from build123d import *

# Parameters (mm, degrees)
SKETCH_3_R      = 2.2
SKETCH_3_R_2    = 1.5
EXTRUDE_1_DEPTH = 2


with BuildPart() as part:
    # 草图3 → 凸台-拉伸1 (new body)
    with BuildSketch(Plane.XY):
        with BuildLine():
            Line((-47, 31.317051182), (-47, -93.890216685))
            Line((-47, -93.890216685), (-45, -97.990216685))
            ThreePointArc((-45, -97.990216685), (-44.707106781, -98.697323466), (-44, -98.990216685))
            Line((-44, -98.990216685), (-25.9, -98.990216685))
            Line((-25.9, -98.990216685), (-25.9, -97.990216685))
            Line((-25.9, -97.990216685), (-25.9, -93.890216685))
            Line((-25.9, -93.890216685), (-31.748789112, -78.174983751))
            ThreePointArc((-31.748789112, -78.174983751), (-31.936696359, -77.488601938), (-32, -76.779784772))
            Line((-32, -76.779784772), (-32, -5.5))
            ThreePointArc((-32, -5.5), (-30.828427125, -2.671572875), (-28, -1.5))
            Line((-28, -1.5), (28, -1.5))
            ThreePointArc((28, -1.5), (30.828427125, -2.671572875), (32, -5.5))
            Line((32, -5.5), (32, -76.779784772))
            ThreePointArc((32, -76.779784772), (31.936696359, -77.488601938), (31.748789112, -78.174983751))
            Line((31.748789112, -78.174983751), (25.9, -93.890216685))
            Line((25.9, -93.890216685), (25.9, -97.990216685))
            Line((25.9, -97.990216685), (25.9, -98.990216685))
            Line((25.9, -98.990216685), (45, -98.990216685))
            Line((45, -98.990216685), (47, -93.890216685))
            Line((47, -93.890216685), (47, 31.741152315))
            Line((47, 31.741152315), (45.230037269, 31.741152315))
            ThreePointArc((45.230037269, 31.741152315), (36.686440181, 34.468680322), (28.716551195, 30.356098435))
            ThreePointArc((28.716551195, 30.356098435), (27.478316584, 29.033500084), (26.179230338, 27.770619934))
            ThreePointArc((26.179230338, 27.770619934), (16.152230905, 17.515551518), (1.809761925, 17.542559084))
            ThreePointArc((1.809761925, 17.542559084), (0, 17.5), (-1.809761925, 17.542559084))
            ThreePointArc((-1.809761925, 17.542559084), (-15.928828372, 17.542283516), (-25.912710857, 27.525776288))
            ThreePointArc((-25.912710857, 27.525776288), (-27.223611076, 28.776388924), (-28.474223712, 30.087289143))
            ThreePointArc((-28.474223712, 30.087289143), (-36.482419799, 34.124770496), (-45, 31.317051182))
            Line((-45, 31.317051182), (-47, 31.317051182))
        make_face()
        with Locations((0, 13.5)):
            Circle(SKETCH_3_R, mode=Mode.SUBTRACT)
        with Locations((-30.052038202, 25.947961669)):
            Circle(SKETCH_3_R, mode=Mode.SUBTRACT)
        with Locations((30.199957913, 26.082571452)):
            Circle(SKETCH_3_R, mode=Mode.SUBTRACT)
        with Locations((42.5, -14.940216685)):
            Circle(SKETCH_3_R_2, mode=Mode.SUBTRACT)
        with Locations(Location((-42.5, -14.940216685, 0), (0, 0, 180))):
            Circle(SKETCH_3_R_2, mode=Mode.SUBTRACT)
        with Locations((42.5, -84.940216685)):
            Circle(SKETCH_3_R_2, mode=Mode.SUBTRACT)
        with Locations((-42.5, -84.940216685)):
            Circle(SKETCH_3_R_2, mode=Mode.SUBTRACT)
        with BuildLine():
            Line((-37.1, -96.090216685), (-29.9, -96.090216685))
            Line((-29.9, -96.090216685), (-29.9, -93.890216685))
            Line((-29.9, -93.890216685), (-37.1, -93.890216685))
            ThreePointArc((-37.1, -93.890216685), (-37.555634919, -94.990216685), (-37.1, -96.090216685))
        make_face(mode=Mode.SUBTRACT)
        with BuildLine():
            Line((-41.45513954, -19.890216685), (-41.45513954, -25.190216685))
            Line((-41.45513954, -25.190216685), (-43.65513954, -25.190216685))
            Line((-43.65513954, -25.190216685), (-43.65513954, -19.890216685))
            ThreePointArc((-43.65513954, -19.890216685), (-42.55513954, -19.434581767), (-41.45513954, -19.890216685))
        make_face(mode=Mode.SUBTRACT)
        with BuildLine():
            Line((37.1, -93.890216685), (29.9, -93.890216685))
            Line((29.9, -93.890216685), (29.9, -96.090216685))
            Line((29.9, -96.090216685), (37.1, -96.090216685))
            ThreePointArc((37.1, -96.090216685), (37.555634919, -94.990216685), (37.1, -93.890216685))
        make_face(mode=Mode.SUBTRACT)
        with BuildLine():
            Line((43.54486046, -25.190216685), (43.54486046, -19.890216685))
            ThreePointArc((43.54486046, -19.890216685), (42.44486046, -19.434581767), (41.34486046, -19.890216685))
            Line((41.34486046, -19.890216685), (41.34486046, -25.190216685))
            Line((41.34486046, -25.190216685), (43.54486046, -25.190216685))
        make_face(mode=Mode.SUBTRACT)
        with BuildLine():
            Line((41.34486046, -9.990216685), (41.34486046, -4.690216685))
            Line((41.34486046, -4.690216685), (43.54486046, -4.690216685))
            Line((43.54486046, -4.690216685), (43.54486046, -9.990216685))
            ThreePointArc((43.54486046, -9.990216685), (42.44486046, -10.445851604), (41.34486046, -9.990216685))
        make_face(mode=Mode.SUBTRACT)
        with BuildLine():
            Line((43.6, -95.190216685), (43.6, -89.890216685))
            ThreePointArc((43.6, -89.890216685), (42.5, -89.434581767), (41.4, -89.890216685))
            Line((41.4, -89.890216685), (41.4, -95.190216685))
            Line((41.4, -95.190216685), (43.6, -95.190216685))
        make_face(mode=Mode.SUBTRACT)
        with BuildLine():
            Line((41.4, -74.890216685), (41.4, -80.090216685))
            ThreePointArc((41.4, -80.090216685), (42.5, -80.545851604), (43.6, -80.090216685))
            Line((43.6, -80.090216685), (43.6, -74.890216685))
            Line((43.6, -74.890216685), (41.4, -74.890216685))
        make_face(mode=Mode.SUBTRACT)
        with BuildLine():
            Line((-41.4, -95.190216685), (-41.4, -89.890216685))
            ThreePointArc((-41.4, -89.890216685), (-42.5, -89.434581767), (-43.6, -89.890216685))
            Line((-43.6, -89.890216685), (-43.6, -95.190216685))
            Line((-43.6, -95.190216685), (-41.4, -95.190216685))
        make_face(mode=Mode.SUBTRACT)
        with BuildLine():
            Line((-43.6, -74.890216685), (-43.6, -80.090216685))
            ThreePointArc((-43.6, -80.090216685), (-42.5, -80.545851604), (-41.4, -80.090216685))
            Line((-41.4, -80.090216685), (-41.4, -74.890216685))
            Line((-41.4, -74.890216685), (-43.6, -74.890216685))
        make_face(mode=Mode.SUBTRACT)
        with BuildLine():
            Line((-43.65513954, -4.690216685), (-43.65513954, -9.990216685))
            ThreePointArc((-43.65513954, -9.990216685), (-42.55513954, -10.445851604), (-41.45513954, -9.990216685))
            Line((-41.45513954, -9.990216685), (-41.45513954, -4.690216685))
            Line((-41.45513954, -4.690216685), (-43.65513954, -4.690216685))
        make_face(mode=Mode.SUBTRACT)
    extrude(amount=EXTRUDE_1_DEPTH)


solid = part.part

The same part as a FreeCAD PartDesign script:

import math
import FreeCAD as App
import Part
import Sketcher

doc = App.newDocument("Part")
body = doc.addObject("PartDesign::Body", "Body")

sketch1 = body.newObject("Sketcher::SketchObject", "Sketch")
sketch1.AttachmentSupport = (doc.getObject("XY_Plane"), [""])
sketch1.MapMode = "FlatFace"
sketch1.addGeometry([
    Part.LineSegment(App.Vector(-47, 31.3, 0), App.Vector(-47, -93.9, 0)),
    Part.LineSegment(App.Vector(-47, -93.9, 0), App.Vector(-45, -98, 0)),
    Part.ArcOfCircle(Part.Circle(App.Vector(-44, -98, 0), App.Vector(0, 0, 1), 1), math.radians(-180), math.radians(-90)),
    Part.LineSegment(App.Vector(-44, -99, 0), App.Vector(-25.9, -99, 0)),
    Part.LineSegment(App.Vector(-25.9, -99, 0), App.Vector(-25.9, -93.9, 0)),
    Part.LineSegment(App.Vector(-25.9, -93.9, 0), App.Vector(-31.7, -78.2, 0)),
    Part.ArcOfCircle(Part.Circle(App.Vector(-28, -76.8, 0), App.Vector(0, 0, 1), 4), math.radians(-180), math.radians(-160)),
    Part.LineSegment(App.Vector(-32, -76.8, 0), App.Vector(-32, -5.5, 0)),
    Part.ArcOfCircle(Part.Circle(App.Vector(-28, -5.5, 0), App.Vector(0, 0, 1), 4), math.radians(90), math.radians(180)),
    Part.LineSegment(App.Vector(-28, -1.5, 0), App.Vector(28, -1.5, 0)),
    Part.ArcOfCircle(Part.Circle(App.Vector(28, -5.5, 0), App.Vector(0, 0, 1), 4), math.radians(0), math.radians(90)),
    Part.LineSegment(App.Vector(32, -5.5, 0), App.Vector(32, -76.8, 0)),
    Part.ArcOfCircle(Part.Circle(App.Vector(28, -76.8, 0), App.Vector(0, 0, 1), 4), math.radians(-20), math.radians(0)),
    Part.LineSegment(App.Vector(31.7, -78.2, 0), App.Vector(25.9, -93.9, 0)),
    Part.LineSegment(App.Vector(25.9, -93.9, 0), App.Vector(25.9, -99, 0)),
    Part.LineSegment(App.Vector(25.9, -99, 0), App.Vector(45, -99, 0)),
    Part.LineSegment(App.Vector(45, -99, 0), App.Vector(47, -93.9, 0)),
    Part.LineSegment(App.Vector(47, -93.9, 0), App.Vector(47, 31.7, 0)),
    Part.LineSegment(App.Vector(47, 31.7, 0), App.Vector(45.2, 31.7, 0)),
    Part.ArcOfCircle(Part.Circle(App.Vector(37.7, 22.8, 0), App.Vector(0, 0, 1), 11.7), math.radians(50), math.radians(140)),
    Part.ArcOfCircle(Part.Circle(App.Vector(0, 56, 0), App.Vector(0, 0, 1), 38.5), math.radians(-47.16), math.radians(-41.76)),
    Part.ArcOfCircle(Part.Circle(App.Vector(9, 34.5, 0), App.Vector(0, 0, 1), 18.4), math.radians(-113), math.radians(-21)),
    Part.ArcOfCircle(Part.Circle(App.Vector(0, 56, 0), App.Vector(0, 0, 1), 38.5), math.radians(-92.69), math.radians(-87.31)),
    Part.ArcOfCircle(Part.Circle(App.Vector(-8.9, 34.6, 0), App.Vector(0, 0, 1), 18.4), math.radians(-157), math.radians(-67)),
    Part.ArcOfCircle(Part.Circle(App.Vector(0, 56, 0), App.Vector(0, 0, 1), 38.5), math.radians(-137.7), math.radians(-132.3)),
    Part.ArcOfCircle(Part.Circle(App.Vector(-37.4, 22.4, 0), App.Vector(0, 0, 1), 11.7), math.radians(41), math.radians(131)),
    Part.LineSegment(App.Vector(-45, 31.3, 0), App.Vector(-47, 31.3, 0)),
    Part.LineSegment(App.Vector(-41.4, -89.9, 0), App.Vector(-41.4, -95.2, 0)),
    Part.LineSegment(App.Vector(-41.4, -95.2, 0), App.Vector(-43.6, -95.2, 0)),
    Part.LineSegment(App.Vector(-43.6, -95.2, 0), App.Vector(-43.6, -89.9, 0)),
    Part.ArcOfCircle(Part.Circle(App.Vector(-42.5, -91, 0), App.Vector(0, 0, 1), 1.6), math.radians(45), math.radians(135)),
    Part.LineSegment(App.Vector(-29.9, -96.1, 0), App.Vector(-37.1, -96.1, 0)),
    Part.ArcOfCircle(Part.Circle(App.Vector(-36, -95, 0), App.Vector(0, 0, 1), 1.6), math.radians(135), math.radians(225)),
    Part.LineSegment(App.Vector(-37.1, -93.9, 0), App.Vector(-29.9, -93.9, 0)),
    Part.LineSegment(App.Vector(-29.9, -93.9, 0), App.Vector(-29.9, -96.1, 0)),
    Part.Circle(App.Vector(-42.5, -84.9, 0), App.Vector(0, 0, 1), 1.5),
    Part.LineSegment(App.Vector(-43.6, -80.1, 0), App.Vector(-43.6, -74.9, 0)),
    Part.LineSegment(App.Vector(-43.6, -74.9, 0), App.Vector(-41.4, -74.9, 0)),
    Part.LineSegment(App.Vector(-41.4, -74.9, 0), App.Vector(-41.4, -80.1, 0)),
    Part.ArcOfCircle(Part.Circle(App.Vector(-42.5, -79, 0), App.Vector(0, 0, 1), 1.6), math.radians(-135), math.radians(-45)),
    Part.LineSegment(App.Vector(29.9, -93.9, 0), App.Vector(37.1, -93.9, 0)),
    Part.ArcOfCircle(Part.Circle(App.Vector(36, -95, 0), App.Vector(0, 0, 1), 1.6), math.radians(-45), math.radians(45)),
    Part.LineSegment(App.Vector(37.1, -96.1, 0), App.Vector(29.9, -96.1, 0)),
    Part.LineSegment(App.Vector(29.9, -96.1, 0), App.Vector(29.9, -93.9, 0)),
    Part.LineSegment(App.Vector(43.6, -89.9, 0), App.Vector(43.6, -95.2, 0)),
    Part.LineSegment(App.Vector(43.6, -95.2, 0), App.Vector(41.4, -95.2, 0)),
    Part.LineSegment(App.Vector(41.4, -95.2, 0), App.Vector(41.4, -89.9, 0)),
    Part.ArcOfCircle(Part.Circle(App.Vector(42.5, -91, 0), App.Vector(0, 0, 1), 1.6), math.radians(45), math.radians(135)),
    Part.Circle(App.Vector(42.5, -84.9, 0), App.Vector(0, 0, 1), 1.5),
    Part.LineSegment(App.Vector(41.4, -80.1, 0), App.Vector(41.4, -74.9, 0)),
    Part.LineSegment(App.Vector(41.4, -74.9, 0), App.Vector(43.6, -74.9, 0)),
    Part.LineSegment(App.Vector(43.6, -74.9, 0), App.Vector(43.6, -80.1, 0)),
    Part.ArcOfCircle(Part.Circle(App.Vector(42.5, -79, 0), App.Vector(0, 0, 1), 1.6), math.radians(-135), math.radians(-45)),
    Part.ArcOfCircle(Part.Circle(App.Vector(-42.6, -21, 0), App.Vector(0, 0, 1), 1.6), math.radians(45), math.radians(135)),
    Part.LineSegment(App.Vector(-41.5, -19.9, 0), App.Vector(-41.5, -25.2, 0)),
    Part.LineSegment(App.Vector(-41.5, -25.2, 0), App.Vector(-43.7, -25.2, 0)),
    Part.LineSegment(App.Vector(-43.7, -25.2, 0), App.Vector(-43.7, -19.9, 0)),
    Part.Circle(App.Vector(-42.5, -14.9, 0), App.Vector(0, 0, 1), 1.5),
    Part.LineSegment(App.Vector(-43.7, -10, 0), App.Vector(-43.7, -4.7, 0)),
    Part.LineSegment(App.Vector(-43.7, -4.7, 0), App.Vector(-41.5, -4.7, 0)),
    Part.LineSegment(App.Vector(-41.5, -4.7, 0), App.Vector(-41.5, -10, 0)),
    Part.ArcOfCircle(Part.Circle(App.Vector(-42.6, -8.9, 0), App.Vector(0, 0, 1), 1.6), math.radians(-135), math.radians(-45)),
    Part.Circle(App.Vector(-30.1, 25.9, 0), App.Vector(0, 0, 1), 2.2),
    Part.LineSegment(App.Vector(43.5, -19.9, 0), App.Vector(43.5, -25.2, 0)),
    Part.LineSegment(App.Vector(43.5, -25.2, 0), App.Vector(41.3, -25.2, 0)),
    Part.LineSegment(App.Vector(41.3, -25.2, 0), App.Vector(41.3, -19.9, 0)),
    Part.ArcOfCircle(Part.Circle(App.Vector(42.4, -21, 0), App.Vector(0, 0, 1), 1.6), math.radians(45), math.radians(135)),
    Part.Circle(App.Vector(42.5, -14.9, 0), App.Vector(0, 0, 1), 1.5),
    Part.ArcOfCircle(Part.Circle(App.Vector(42.4, -8.9, 0), App.Vector(0, 0, 1), 1.6), math.radians(-135), math.radians(-45)),
    Part.LineSegment(App.Vector(41.3, -10, 0), App.Vector(41.3, -4.7, 0)),
    Part.LineSegment(App.Vector(41.3, -4.7, 0), App.Vector(43.5, -4.7, 0)),
    Part.LineSegment(App.Vector(43.5, -4.7, 0), App.Vector(43.5, -10, 0)),
    Part.Circle(App.Vector(0, 13.5, 0), App.Vector(0, 0, 1), 2.2),
    Part.Circle(App.Vector(30.2, 26.1, 0), App.Vector(0, 0, 1), 2.2),
], False)
sketch1.addConstraint([
    Sketcher.Constraint("Coincident", 0, 2, 1, 1),
    Sketcher.Constraint("Coincident", 1, 2, 2, 1),
    Sketcher.Constraint("Tangent", 2, 2, 3, 1),
    Sketcher.Constraint("Coincident", 3, 2, 4, 1),
    Sketcher.Constraint("Coincident", 4, 2, 5, 1),
    Sketcher.Constraint("Tangent", 5, 2, 6, 2),
    Sketcher.Constraint("Tangent", 6, 1, 7, 1),
    Sketcher.Constraint("Tangent", 7, 2, 8, 2),
    Sketcher.Constraint("Tangent", 8, 1, 9, 1),
    Sketcher.Constraint("Tangent", 9, 2, 10, 2),
    Sketcher.Constraint("Tangent", 10, 1, 11, 1),
    Sketcher.Constraint("Tangent", 11, 2, 12, 2),
    Sketcher.Constraint("Tangent", 12, 1, 13, 1),
    Sketcher.Constraint("Coincident", 13, 2, 14, 1),
    Sketcher.Constraint("Coincident", 14, 2, 15, 1),
    Sketcher.Constraint("Coincident", 15, 2, 16, 1),
    Sketcher.Constraint("Coincident", 16, 2, 17, 1),
    Sketcher.Constraint("Coincident", 17, 2, 18, 1),
    Sketcher.Constraint("Coincident", 18, 2, 19, 1),
    Sketcher.Constraint("Coincident", 19, 2, 20, 2),
    Sketcher.Constraint("Coincident", 20, 1, 21, 2),
    Sketcher.Constraint("Coincident", 21, 1, 22, 2),
    Sketcher.Constraint("Coincident", 22, 1, 23, 2),
    Sketcher.Constraint("Coincident", 23, 1, 24, 2),
    Sketcher.Constraint("Coincident", 24, 1, 25, 1),
    Sketcher.Constraint("Coincident", 25, 2, 26, 1),
    Sketcher.Constraint("Coincident", 26, 2, 0, 1),
    Sketcher.Constraint("Coincident", 27, 2, 28, 1),
    Sketcher.Constraint("Coincident", 28, 2, 29, 1),
    Sketcher.Constraint("Coincident", 29, 2, 30, 2),
    Sketcher.Constraint("Coincident", 30, 1, 27, 1),
    Sketcher.Constraint("Coincident", 31, 2, 32, 2),
    Sketcher.Constraint("Coincident", 32, 1, 33, 1),
    Sketcher.Constraint("Coincident", 33, 2, 34, 1),
    Sketcher.Constraint("Coincident", 34, 2, 31, 1),
    Sketcher.Constraint("Coincident", 36, 2, 37, 1),
    Sketcher.Constraint("Coincident", 37, 2, 38, 1),
    Sketcher.Constraint("Coincident", 38, 2, 39, 2),
    Sketcher.Constraint("Coincident", 39, 1, 36, 1),
    Sketcher.Constraint("Coincident", 40, 2, 41, 2),
    Sketcher.Constraint("Coincident", 41, 1, 42, 1),
    Sketcher.Constraint("Coincident", 42, 2, 43, 1),
    Sketcher.Constraint("Coincident", 43, 2, 40, 1),
    Sketcher.Constraint("Coincident", 44, 2, 45, 1),
    Sketcher.Constraint("Coincident", 45, 2, 46, 1),
    Sketcher.Constraint("Coincident", 46, 2, 47, 2),
    Sketcher.Constraint("Coincident", 47, 1, 44, 1),
    Sketcher.Constraint("Coincident", 49, 2, 50, 1),
    Sketcher.Constraint("Coincident", 50, 2, 51, 1),
    Sketcher.Constraint("Coincident", 51, 2, 52, 2),
    Sketcher.Constraint("Coincident", 52, 1, 49, 1),
    Sketcher.Constraint("Coincident", 53, 1, 54, 1),
    Sketcher.Constraint("Coincident", 54, 2, 55, 1),
    Sketcher.Constraint("Coincident", 55, 2, 56, 1),
    Sketcher.Constraint("Coincident", 56, 2, 53, 2),
    Sketcher.Constraint("Coincident", 58, 2, 59, 1),
    Sketcher.Constraint("Coincident", 59, 2, 60, 1),
    Sketcher.Constraint("Coincident", 60, 2, 61, 2),
    Sketcher.Constraint("Coincident", 61, 1, 58, 1),
    Sketcher.Constraint("Coincident", 63, 2, 64, 1),
    Sketcher.Constraint("Coincident", 64, 2, 65, 1),
    Sketcher.Constraint("Coincident", 65, 2, 66, 2),
    Sketcher.Constraint("Coincident", 66, 1, 63, 1),
    Sketcher.Constraint("Coincident", 68, 1, 69, 1),
    Sketcher.Constraint("Coincident", 69, 2, 70, 1),
    Sketcher.Constraint("Coincident", 70, 2, 71, 1),
    Sketcher.Constraint("Coincident", 71, 2, 68, 2),
    Sketcher.Constraint("Vertical", 0),
    Sketcher.Constraint("Horizontal", 3),
    Sketcher.Constraint("Vertical", 4),
    Sketcher.Constraint("Vertical", 7),
    Sketcher.Constraint("Horizontal", 9),
    Sketcher.Constraint("Vertical", 11),
    Sketcher.Constraint("Vertical", 14),
    Sketcher.Constraint("Horizontal", 15),
    Sketcher.Constraint("Vertical", 17),
    Sketcher.Constraint("Horizontal", 18),
    Sketcher.Constraint("Horizontal", 26),
    Sketcher.Constraint("Vertical", 27),
    Sketcher.Constraint("Horizontal", 28),
    Sketcher.Constraint("Vertical", 29),
    Sketcher.Constraint("Horizontal", 31),
    Sketcher.Constraint("Horizontal", 33),
    Sketcher.Constraint("Vertical", 34),
    Sketcher.Constraint("Vertical", 36),
    Sketcher.Constraint("Horizontal", 37),
    Sketcher.Constraint("Vertical", 38),
    Sketcher.Constraint("Horizontal", 40),
    Sketcher.Constraint("Horizontal", 42),
    Sketcher.Constraint("Vertical", 43),
    Sketcher.Constraint("Vertical", 44),
    Sketcher.Constraint("Horizontal", 45),
    Sketcher.Constraint("Vertical", 46),
    Sketcher.Constraint("Vertical", 49),
    Sketcher.Constraint("Horizontal", 50),
    Sketcher.Constraint("Vertical", 51),
    Sketcher.Constraint("Vertical", 54),
    Sketcher.Constraint("Horizontal", 55),
    Sketcher.Constraint("Vertical", 56),
    Sketcher.Constraint("Vertical", 58),
    Sketcher.Constraint("Horizontal", 59),
    Sketcher.Constraint("Vertical", 60),
    Sketcher.Constraint("Vertical", 63),
    Sketcher.Constraint("Horizontal", 64),
    Sketcher.Constraint("Vertical", 65),
    Sketcher.Constraint("Vertical", 69),
    Sketcher.Constraint("Horizontal", 70),
    Sketcher.Constraint("Vertical", 71),
    Sketcher.Constraint("Coincident", 22, 3, 20, 3),
    Sketcher.Constraint("Coincident", 24, 3, 20, 3),
    Sketcher.Constraint("Equal", 6, 8),
    Sketcher.Constraint("Equal", 8, 10),
    Sketcher.Constraint("Equal", 10, 12),
    Sketcher.Constraint("Equal", 20, 22),
    Sketcher.Constraint("Equal", 21, 23),
    Sketcher.Constraint("Equal", 22, 24),
    Sketcher.Constraint("Equal", 19, 25),
    Sketcher.Constraint("Equal", 30, 32),
    Sketcher.Constraint("Equal", 32, 39),
    Sketcher.Constraint("Equal", 39, 41),
    Sketcher.Constraint("Equal", 41, 47),
    Sketcher.Constraint("Equal", 35, 48),
    Sketcher.Constraint("Equal", 47, 52),
    Sketcher.Constraint("Equal", 52, 53),
    Sketcher.Constraint("Equal", 48, 57),
    Sketcher.Constraint("Equal", 53, 61),
    Sketcher.Constraint("Equal", 61, 66),
    Sketcher.Constraint("Equal", 57, 67),
    Sketcher.Constraint("Equal", 66, 68),
    Sketcher.Constraint("Equal", 62, 72),
    Sketcher.Constraint("Equal", 72, 73),
    Sketcher.Constraint("Symmetric", 6, 3, 12, 3, -2),
    Sketcher.Constraint("Symmetric", 32, 3, 41, 3, -2),
    Sketcher.Constraint("Symmetric", 30, 3, 47, 3, -2),
    Sketcher.Constraint("Symmetric", 35, 3, 48, 3, -2),
    Sketcher.Constraint("Symmetric", 39, 3, 52, 3, -2),
    Sketcher.Constraint("Symmetric", 57, 3, 67, 3, -2),
    Sketcher.Constraint("Symmetric", 4, 2, 13, 2, -2),
    Sketcher.Constraint("Symmetric", 0, 2, 16, 2, -2),
    Sketcher.Constraint("Symmetric", 21, 1, 22, 1, -2),
    Sketcher.Constraint("Symmetric", 34, 2, 42, 2, -2),
    Sketcher.Constraint("Symmetric", 28, 2, 44, 2, -2),
    Sketcher.Constraint("Symmetric", 37, 2, 49, 2, -2),
    Sketcher.Constraint("PointOnObject", 72, 3, -2),
    Sketcher.Constraint("Horizontal", 53, 3, 66, 3),
    Sketcher.Constraint("Horizontal", 61, 3, 68, 3),
    Sketcher.Constraint("Horizontal", 2, 3, 1, 2),
    Sketcher.Constraint("Horizontal", 0, 2, 4, 2),
    Sketcher.Constraint("Horizontal", 3, 2, 14, 2),
    Sketcher.Constraint("Horizontal", 29, 2, 30, 1),
    Sketcher.Constraint("Horizontal", 16, 2, 32, 1),
    Sketcher.Constraint("Horizontal", 38, 2, 39, 1),
    Sketcher.Constraint("Horizontal", 33, 2, 40, 2),
    Sketcher.Constraint("Horizontal", 30, 1, 46, 2),
    Sketcher.Constraint("Horizontal", 39, 1, 51, 2),
    Sketcher.Constraint("Horizontal", 53, 1, 56, 2),
    Sketcher.Constraint("Horizontal", 60, 2, 61, 1),
    Sketcher.Constraint("Horizontal", 55, 2, 63, 2),
    Sketcher.Constraint("Horizontal", 56, 2, 65, 2),
    Sketcher.Constraint("Horizontal", 65, 2, 66, 1),
    Sketcher.Constraint("Horizontal", 61, 1, 68, 1),
    Sketcher.Constraint("Horizontal", 59, 2, 69, 2),
    Sketcher.Constraint("Horizontal", 68, 1, 71, 2),
    Sketcher.Constraint("Vertical", 30, 3, 35, 3),
    Sketcher.Constraint("Vertical", 35, 3, 39, 3),
    Sketcher.Constraint("Vertical", 39, 3, 57, 3),
    Sketcher.Constraint("Vertical", 53, 3, 61, 3),
    Sketcher.Constraint("Vertical", 66, 3, 68, 3),
    Sketcher.Constraint("Vertical", 1, 2, 25, 2),
    Sketcher.Constraint("Vertical", 31, 2, 32, 1),
    Sketcher.Constraint("Vertical", 29, 2, 36, 2),
    Sketcher.Constraint("Vertical", 56, 2, 58, 2),
    Sketcher.Constraint("Equal", 50, 55),
    Sketcher.Constraint("Equal", 70, 34),
    Sketcher.Constraint("Equal", 46, 54),
    Sketcher.Constraint("Equal", 56, 58),
    Sketcher.Constraint("Diameter", 35, 3.0),
    Sketcher.Constraint("Radius", 2, 1.0),
    Sketcher.Constraint("Radius", 6, 4.0),
    Sketcher.Constraint("Diameter", 62, 4.4),
    Sketcher.Constraint("Radius", 20, 38.5),
    Sketcher.Constraint("DistanceX", 9, 1, 9, 2, 56.0),
    Sketcher.Constraint("DistanceX", 26, 2, 26, 1, 2.0),
    Sketcher.Constraint("DistanceX", 3, 1, 3, 2, 18.1),
    Sketcher.Constraint("DistanceX", 15, 1, 15, 2, 19.1),
    Sketcher.Constraint("DistanceX", 28, 2, 28, 1, 2.2),
    Sketcher.Constraint("DistanceX", 31, 2, 31, 1, 7.2),
    Sketcher.Constraint("DistanceY", 4, 1, 4, 2, 5.1),
    Sketcher.Constraint("DistanceY", 27, 2, 27, 1, 5.3),
    Sketcher.Constraint("DistanceY", 36, 1, 36, 2, 5.2),
    Sketcher.Constraint("DistanceX", 2, 3, -1, 1, 44.0),
    Sketcher.Constraint("DistanceY", -1, 1, 20, 3, 56.0),
    Sketcher.Constraint("DistanceX", 32, 3, -1, 1, 36.0),
    Sketcher.Constraint("DistanceY", 8, 3, -1, 1, 5.5),
    Sketcher.Constraint("DistanceX", 30, 3, -1, 1, 42.5),
    Sketcher.Constraint("DistanceY", -1, 1, 72, 3, 13.5),
    Sketcher.Constraint("DistanceX", 31, 2, -1, 1, 37.1),
    Sketcher.Constraint("Radius", 19, 11.717798),
    Sketcher.Constraint("Radius", 21, 18.447449),
    Sketcher.Constraint("DistanceX", -1, 1, 21, 3, 9.013002),
    Sketcher.Constraint("DistanceY", 17, 1, 17, 2, 125.631369),
    Sketcher.Constraint("DistanceY", -1, 1, 19, 2, 30.356098),
    Sketcher.Constraint("Distance", 5, 16.76833),
    Sketcher.Constraint("DistanceX", 18, 2, 18, 1, 1.769963),
    Sketcher.Constraint("DistanceY", 0, 2, 0, 1, 125.207268),
    Sketcher.Constraint("DistanceY", 7, 1, 7, 2, 71.279785),
    Sketcher.Constraint("DistanceX", 53, 3, -1, 1, 42.55514),
    Sketcher.Constraint("DistanceX", 62, 3, -1, 1, 30.052038),
    Sketcher.Constraint("DistanceY", -1, 1, 62, 3, 25.947962),
    Sketcher.Constraint("DistanceX", -1, 1, 66, 3, 42.44486),
    Sketcher.Constraint("DistanceY", -1, 1, 73, 3, 26.082571),
    Sketcher.Constraint("DistanceX", -1, 1, 20, 1, 26.17923),
    Sketcher.Constraint("DistanceX", 23, 1, -1, 1, 25.912711),
    Sketcher.Constraint("DistanceY", -1, 1, 24, 1, 30.087289),
    Sketcher.Constraint("DistanceY", 30, 3, -1, 1, 90.990217),
    Sketcher.Constraint("DistanceY", 35, 3, -1, 1, 84.940217),
    Sketcher.Constraint("DistanceY", 39, 3, -1, 1, 78.990217),
    Sketcher.Constraint("DistanceY", 53, 3, -1, 1, 20.990217),
    Sketcher.Constraint("DistanceY", 57, 3, -1, 1, 14.940217),
    Sketcher.Constraint("DistanceY", 61, 3, -1, 1, 8.890217),
    Sketcher.Constraint("DistanceX", -1, 1, 73, 3, 30.199958),
])
pad1 = body.newObject("PartDesign::Pad", "Pad")
pad1.Profile = sketch1
pad1.Length = 2

doc.recompute()
